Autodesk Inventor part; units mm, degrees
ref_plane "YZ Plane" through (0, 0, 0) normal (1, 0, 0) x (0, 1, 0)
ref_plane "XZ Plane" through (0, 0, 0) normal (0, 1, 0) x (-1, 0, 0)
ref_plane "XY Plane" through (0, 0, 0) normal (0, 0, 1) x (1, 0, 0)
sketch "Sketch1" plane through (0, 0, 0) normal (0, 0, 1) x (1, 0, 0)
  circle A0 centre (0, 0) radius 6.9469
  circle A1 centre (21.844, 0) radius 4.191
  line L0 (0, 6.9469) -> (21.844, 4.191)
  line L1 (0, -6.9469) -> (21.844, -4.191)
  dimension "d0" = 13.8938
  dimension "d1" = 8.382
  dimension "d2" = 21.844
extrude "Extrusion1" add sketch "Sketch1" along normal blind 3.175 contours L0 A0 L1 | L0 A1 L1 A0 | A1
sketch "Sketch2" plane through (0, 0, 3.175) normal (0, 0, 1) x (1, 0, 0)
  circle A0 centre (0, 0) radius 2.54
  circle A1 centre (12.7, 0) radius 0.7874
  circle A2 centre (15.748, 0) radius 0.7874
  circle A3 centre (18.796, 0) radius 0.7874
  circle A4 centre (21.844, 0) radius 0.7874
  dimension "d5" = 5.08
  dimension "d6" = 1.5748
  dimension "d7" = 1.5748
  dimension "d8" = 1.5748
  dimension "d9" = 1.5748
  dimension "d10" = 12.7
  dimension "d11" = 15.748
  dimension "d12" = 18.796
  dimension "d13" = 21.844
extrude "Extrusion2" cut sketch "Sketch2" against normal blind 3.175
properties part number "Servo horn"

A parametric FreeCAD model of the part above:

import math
import FreeCAD as App
import Part
import Sketcher

V = App.Vector
Q = App.Units.Quantity

doc = App.newDocument("Part")
body = doc.addObject("PartDesign::Body", "Body")

# Sketch on XY plane
sketch1 = body.newObject("Sketcher::SketchObject", "Sketch")
sketch1.AttachmentSupport = (doc.getObject("XY_Plane"), [""])
sketch1.MapMode = "FlatFace"
sketch1.addGeometry(Part.ArcOfCircle(Part.Circle(V(0, 0, 0), V(0, 0, 1), 6.9), math.radians(90), math.radians(270)), False)
sketch1.addGeometry(Part.LineSegment(V(0, -6.9, 0), V(21.8, -4.2, 0)), False)
sketch1.addGeometry(Part.ArcOfCircle(Part.Circle(V(21.8, 0, 0), V(0, 0, 1), 4.2), math.radians(-90), math.radians(90)), False)
sketch1.addGeometry(Part.LineSegment(V(21.8, 4.2, 0), V(0, 6.9, 0)), False)
sketch1.addConstraint(Sketcher.Constraint("Coincident", 0, 2, 1, 1))
sketch1.addConstraint(Sketcher.Constraint("Coincident", 1, 2, 2, 1))
sketch1.addConstraint(Sketcher.Constraint("Coincident", 2, 2, 3, 1))
sketch1.addConstraint(Sketcher.Constraint("Coincident", 3, 2, 0, 1))
sketch1.addConstraint(Sketcher.Constraint("Coincident", 0, 3, -1, 1))
sketch1.addConstraint(Sketcher.Constraint("Symmetric", 1, 2, 2, 2, -1))
sketch1.addConstraint(Sketcher.Constraint("PointOnObject", 0, 2, -2))
sketch1.addConstraint(Sketcher.Constraint("PointOnObject", 3, 2, -2))
sketch1.addConstraint(Sketcher.Constraint("Vertical", 2, 3, 1, 2))
sketch1.addConstraint(Sketcher.Constraint("Radius", 2, Q("0.165 in")))
sketch1.addConstraint(Sketcher.Constraint("Radius", 0, Q("0.2735 in")))
sketch1.addConstraint(Sketcher.Constraint("DistanceX", -1, 1, 2, 3, Q("0.86 in")))
pad1 = body.newObject("PartDesign::Pad", "Pad")
pad1.Profile = sketch1
pad1.Length = Q("0.125 in")

# Sketch on XY plane
sketch2 = body.newObject("Sketcher::SketchObject", "Sketch001")
sketch2.AttachmentSupport = (doc.getObject("XY_Plane"), [""])
sketch2.MapMode = "FlatFace"
sketch2.AttachmentOffset = App.Placement(V(0, 0, 0.125 * 25.4), App.Rotation())
sketch2.addGeometry(Part.Circle(V(0, 0, 0), V(0, 0, 1), 2.5), False)
sketch2.addGeometry(Part.Circle(V(12.7, 0, 0), V(0, 0, 1), 0.8), False)
sketch2.addGeometry(Part.Circle(V(15.7, 0, 0), V(0, 0, 1), 0.8), False)
sketch2.addGeometry(Part.Circle(V(18.8, 0, 0), V(0, 0, 1), 0.8), False)
sketch2.addGeometry(Part.Circle(V(21.8, 0, 0), V(0, 0, 1), 0.8), False)
sketch2.addConstraint(Sketcher.Constraint("Coincident", 0, 3, -1, 1))
sketch2.addConstraint(Sketcher.Constraint("Equal", 1, 2))
sketch2.addConstraint(Sketcher.Constraint("Equal", 2, 3))
sketch2.addConstraint(Sketcher.Constraint("Equal", 3, 4))
sketch2.addConstraint(Sketcher.Constraint("PointOnObject", 1, 3, -1))
sketch2.addConstraint(Sketcher.Constraint("PointOnObject", 2, 3, -1))
sketch2.addConstraint(Sketcher.Constraint("PointOnObject", 3, 3, -1))
sketch2.addConstraint(Sketcher.Constraint("PointOnObject", 4, 3, -1))
sketch2.addConstraint(Sketcher.Constraint("Diameter", 0, Q("0.2 in")))
sketch2.addConstraint(Sketcher.Constraint("Diameter", 1, Q("0.062 in")))
sketch2.addConstraint(Sketcher.Constraint("DistanceX", -1, 1, 1, 3, Q("0.5 in")))
sketch2.addConstraint(Sketcher.Constraint("DistanceX", -1, 1, 2, 3, Q("0.62 in")))
sketch2.addConstraint(Sketcher.Constraint("DistanceX", -1, 1, 3, 3, Q("0.74 in")))
sketch2.addConstraint(Sketcher.Constraint("DistanceX", -1, 1, 4, 3, Q("0.86 in")))
pocket1 = body.newObject("PartDesign::Pocket", "Pocket")
pocket1.Profile = sketch2
pocket1.Length = Q("0.125 in")

doc.recompute()
